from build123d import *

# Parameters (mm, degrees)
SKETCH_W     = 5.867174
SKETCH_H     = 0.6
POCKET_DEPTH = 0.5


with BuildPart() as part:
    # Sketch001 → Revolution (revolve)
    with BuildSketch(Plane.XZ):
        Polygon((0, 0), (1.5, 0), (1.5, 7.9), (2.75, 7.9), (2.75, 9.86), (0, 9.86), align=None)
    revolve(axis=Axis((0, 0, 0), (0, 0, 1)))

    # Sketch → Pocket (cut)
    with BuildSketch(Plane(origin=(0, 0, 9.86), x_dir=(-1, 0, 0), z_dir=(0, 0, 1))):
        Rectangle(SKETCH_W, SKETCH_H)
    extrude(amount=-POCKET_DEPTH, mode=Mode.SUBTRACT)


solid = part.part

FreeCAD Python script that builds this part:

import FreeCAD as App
import Part
import Sketcher


def add_polygon(sketch, points):
    """Adds a closed chain of lines whose ends are joined by coincident constraints."""
    first, n = sketch.GeometryCount, len(points)
    for a, b in zip(points, points[1:] + points[:1]):
        sketch.addGeometry(Part.LineSegment(App.Vector(*a, 0), App.Vector(*b, 0)), False)
    for i in range(n):
        sketch.addConstraint(Sketcher.Constraint("Coincident", first + i, 2, first + (i + 1) % n, 1))

doc = App.newDocument("Part")
params = doc.addObject("Spreadsheet::Sheet", "Params")
for row, (alias, value) in enumerate([
    ("sketch1_width", "1.5 mm"),
    ("sketch1_height", "7.9 mm"),
    ("sketch1_width2", "1.25 mm"),
    ("sketch1_height2", "1.96 mm"),
    ("revolution_angle", "360 deg"),
    ("sketch2_height", "0.6 mm"),
    ("pocket1_length", "0.5 mm"),
], start=1):
    params.set(f"A{row}", alias)
    params.set(f"B{row}", "=" + value)
    params.setAlias(f"B{row}", alias)

body = doc.addObject("PartDesign::Body", "Body")

sketch1 = body.newObject("Sketcher::SketchObject", "Sketch")
sketch1.AttachmentSupport = (doc.getObject("XZ_Plane"), [""])
sketch1.MapMode = "FlatFace"
add_polygon(sketch1, [(0, 0), (1.5, 0), (1.5, 7.9), (2.8, 7.9), (2.8, 9.9), (0, 9.9)])
sketch1.addConstraint([
    Sketcher.Constraint("Horizontal", 0),
    Sketcher.Constraint("Vertical", 1),
    Sketcher.Constraint("Horizontal", 2),
    Sketcher.Constraint("Vertical", 3),
    Sketcher.Constraint("Horizontal", 4),
    Sketcher.Constraint("Vertical", 5),
    Sketcher.Constraint("Coincident", 5, 2, -1, 1),
    Sketcher.Constraint("DistanceX", 0, 1, 0, 2, 1.5),
    Sketcher.Constraint("DistanceY", 1, 1, 1, 2, 7.9),
    Sketcher.Constraint("DistanceX", 2, 1, 2, 2, 1.25),
    Sketcher.Constraint("DistanceY", 3, 1, 3, 2, 1.96),
])
sketch1.setExpression("Constraints[13]", "Params.sketch1_width")
sketch1.setExpression("Constraints[14]", "Params.sketch1_height")
sketch1.setExpression("Constraints[15]", "Params.sketch1_width2")
sketch1.setExpression("Constraints[16]", "Params.sketch1_height2")
revolution = body.newObject("PartDesign::Revolution", "Revolution")
revolution.Profile = sketch1
revolution.ReferenceAxis = (sketch1, ["V_Axis"])
revolution.setExpression("Angle", "Params.revolution_angle")

sketch2 = body.newObject("Sketcher::SketchObject", "Sketch001")
sketch2.AttachmentSupport = (doc.getObject("XY_Plane"), [""])
sketch2.MapMode = "FlatFace"
sketch2.AttachmentOffset = App.Placement(App.Vector(0, 0, 9.86), App.Rotation())
add_polygon(sketch2, [(2.9, -0.3), (2.9, 0.3), (-2.9, 0.3), (-2.9, -0.3)])
sketch2.addConstraint([
    Sketcher.Constraint("Vertical", 0),
    Sketcher.Constraint("Horizontal", 1),
    Sketcher.Constraint("Vertical", 2),
    Sketcher.Constraint("Horizontal", 3),
    Sketcher.Constraint("Symmetric", 0, 2, 2, 2, -1, 1),
    Sketcher.Constraint("DistanceY", 0, 1, 0, 2, 0.6),
    Sketcher.Constraint("DistanceX", 1, 2, 1, 1, 5.867174),
])
sketch2.setExpression("Constraints[9]", "Params.sketch2_height")
pocket1 = body.newObject("PartDesign::Pocket", "Pocket")
pocket1.Profile = sketch2
pocket1.setExpression("Length", "Params.pocket1_length")

doc.recompute()
